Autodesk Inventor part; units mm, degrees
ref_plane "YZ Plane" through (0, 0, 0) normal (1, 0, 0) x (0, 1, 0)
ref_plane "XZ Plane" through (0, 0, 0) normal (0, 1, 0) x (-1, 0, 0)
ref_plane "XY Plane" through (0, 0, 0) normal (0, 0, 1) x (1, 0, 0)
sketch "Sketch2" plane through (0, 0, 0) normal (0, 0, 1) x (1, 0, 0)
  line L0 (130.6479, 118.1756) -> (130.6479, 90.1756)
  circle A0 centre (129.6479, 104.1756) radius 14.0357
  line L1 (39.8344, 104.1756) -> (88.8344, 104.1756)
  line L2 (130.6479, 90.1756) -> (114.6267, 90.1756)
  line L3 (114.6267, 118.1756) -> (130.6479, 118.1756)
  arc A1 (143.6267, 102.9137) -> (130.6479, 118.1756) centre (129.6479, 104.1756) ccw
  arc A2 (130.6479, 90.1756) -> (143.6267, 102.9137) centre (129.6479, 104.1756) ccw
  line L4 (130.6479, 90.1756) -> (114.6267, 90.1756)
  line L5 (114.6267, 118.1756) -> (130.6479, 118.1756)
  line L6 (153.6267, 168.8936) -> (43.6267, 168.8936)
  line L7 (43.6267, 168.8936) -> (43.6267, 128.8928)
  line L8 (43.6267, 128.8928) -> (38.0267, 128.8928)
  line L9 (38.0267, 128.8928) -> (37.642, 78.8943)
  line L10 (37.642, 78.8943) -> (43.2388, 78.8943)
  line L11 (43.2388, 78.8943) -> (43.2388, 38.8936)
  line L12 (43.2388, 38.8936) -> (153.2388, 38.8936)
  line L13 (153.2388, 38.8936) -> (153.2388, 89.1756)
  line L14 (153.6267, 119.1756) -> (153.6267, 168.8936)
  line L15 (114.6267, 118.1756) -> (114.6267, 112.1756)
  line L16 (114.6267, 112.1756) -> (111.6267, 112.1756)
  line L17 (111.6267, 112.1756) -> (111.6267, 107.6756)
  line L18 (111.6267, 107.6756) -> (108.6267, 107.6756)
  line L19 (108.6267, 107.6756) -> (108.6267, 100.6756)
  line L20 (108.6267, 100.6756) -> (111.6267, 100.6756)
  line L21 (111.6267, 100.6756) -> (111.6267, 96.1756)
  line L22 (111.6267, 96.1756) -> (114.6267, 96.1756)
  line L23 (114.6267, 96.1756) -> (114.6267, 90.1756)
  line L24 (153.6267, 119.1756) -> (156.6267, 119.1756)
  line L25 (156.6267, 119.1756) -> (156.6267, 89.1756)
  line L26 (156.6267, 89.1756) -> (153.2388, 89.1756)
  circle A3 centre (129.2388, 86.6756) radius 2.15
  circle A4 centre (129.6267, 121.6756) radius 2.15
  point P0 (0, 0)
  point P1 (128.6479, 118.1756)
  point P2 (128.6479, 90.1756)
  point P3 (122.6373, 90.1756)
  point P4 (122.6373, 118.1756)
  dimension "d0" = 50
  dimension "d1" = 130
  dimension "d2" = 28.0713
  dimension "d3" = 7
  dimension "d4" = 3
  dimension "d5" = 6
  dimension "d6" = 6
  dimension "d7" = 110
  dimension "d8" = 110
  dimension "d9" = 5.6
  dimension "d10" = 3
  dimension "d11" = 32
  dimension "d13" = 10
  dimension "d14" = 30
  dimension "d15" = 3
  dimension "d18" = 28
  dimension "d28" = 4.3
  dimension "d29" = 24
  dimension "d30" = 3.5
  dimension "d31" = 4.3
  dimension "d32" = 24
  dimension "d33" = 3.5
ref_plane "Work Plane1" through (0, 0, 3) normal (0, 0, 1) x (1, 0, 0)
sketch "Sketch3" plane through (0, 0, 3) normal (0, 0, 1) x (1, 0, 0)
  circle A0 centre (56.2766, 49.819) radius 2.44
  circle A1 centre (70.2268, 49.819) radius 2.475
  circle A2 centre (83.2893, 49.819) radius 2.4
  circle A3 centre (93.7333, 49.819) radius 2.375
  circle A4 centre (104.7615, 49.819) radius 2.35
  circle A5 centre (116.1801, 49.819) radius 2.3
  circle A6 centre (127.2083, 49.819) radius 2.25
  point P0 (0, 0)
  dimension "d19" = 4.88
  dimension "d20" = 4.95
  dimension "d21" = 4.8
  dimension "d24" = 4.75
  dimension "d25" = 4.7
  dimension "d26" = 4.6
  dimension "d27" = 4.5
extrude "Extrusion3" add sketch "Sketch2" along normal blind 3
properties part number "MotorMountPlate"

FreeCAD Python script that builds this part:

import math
import FreeCAD as App
import Part
import Sketcher

V = App.Vector
Q = App.Units.Quantity


def add_polygon(sketch, points):
    """Adds a closed chain of lines whose ends are joined by coincident constraints."""
    first, n = sketch.GeometryCount, len(points)
    for a, b in zip(points, points[1:] + points[:1]):
        sketch.addGeometry(Part.LineSegment(App.Vector(*a, 0), App.Vector(*b, 0)), False)
    for i in range(n):
        sketch.addConstraint(Sketcher.Constraint("Coincident", first + i, 2, first + (i + 1) % n, 1))

doc = App.newDocument("Part")
body = doc.addObject("PartDesign::Body", "Body")

# Sketch on XY plane
sketch1 = body.newObject("Sketcher::SketchObject", "Sketch")
sketch1.AttachmentSupport = (doc.getObject("XY_Plane"), [""])
sketch1.MapMode = "FlatFace"
add_polygon(sketch1, [(153.6, 119.2), (153.6, 168.9), (43.6, 168.9), (43.6, 128.9), (38, 128.9), (37.6, 78.9), (43.2, 78.9), (43.2, 38.9), (153.2, 38.9), (153.2, 89.2), (156.6, 89.2), (156.6, 119.2)])  # lines 0-11
sketch1.addGeometry(Part.Circle(V(129.2, 86.7, 0), V(0, 0, 1), 2.1), False)  # 12
sketch1.addGeometry(Part.ArcOfCircle(Part.Circle(V(129.6, 104.2, 0), V(0, 0, 1), 14), math.radians(-94), math.radians(94)), False)  # 13
sketch1.addGeometry(Part.LineSegment(V(128.6, 90.2, 0), V(114.6, 90.2, 0)), False)  # 14
sketch1.addGeometry(Part.LineSegment(V(114.6, 90.2, 0), V(114.6, 96.2, 0)), False)  # 15
sketch1.addGeometry(Part.LineSegment(V(114.6, 96.2, 0), V(111.6, 96.2, 0)), False)  # 16
sketch1.addGeometry(Part.LineSegment(V(111.6, 96.2, 0), V(111.6, 100.7, 0)), False)  # 17
sketch1.addGeometry(Part.LineSegment(V(111.6, 100.7, 0), V(108.6, 100.7, 0)), False)  # 18
sketch1.addGeometry(Part.LineSegment(V(108.6, 100.7, 0), V(108.6, 107.7, 0)), False)  # 19
sketch1.addGeometry(Part.LineSegment(V(108.6, 107.7, 0), V(111.6, 107.7, 0)), False)  # 20
sketch1.addGeometry(Part.LineSegment(V(111.6, 107.7, 0), V(111.6, 112.2, 0)), False)  # 21
sketch1.addGeometry(Part.LineSegment(V(111.6, 112.2, 0), V(114.6, 112.2, 0)), False)  # 22
sketch1.addGeometry(Part.LineSegment(V(114.6, 112.2, 0), V(114.6, 118.2, 0)), False)  # 23
sketch1.addGeometry(Part.LineSegment(V(114.6, 118.2, 0), V(128.6, 118.2, 0)), False)  # 24
sketch1.addGeometry(Part.Circle(V(129.6, 121.7, 0), V(0, 0, 1), 2.1), False)  # 25
sketch1.addConstraint([
    Sketcher.Constraint("Coincident", 13, 1, 14, 1),
    Sketcher.Constraint("Coincident", 14, 2, 15, 1),
    Sketcher.Constraint("Coincident", 15, 2, 16, 1),
    Sketcher.Constraint("Coincident", 16, 2, 17, 1),
    Sketcher.Constraint("Coincident", 17, 2, 18, 1),
    Sketcher.Constraint("Coincident", 18, 2, 19, 1),
    Sketcher.Constraint("Coincident", 19, 2, 20, 1),
    Sketcher.Constraint("Coincident", 20, 2, 21, 1),
    Sketcher.Constraint("Coincident", 21, 2, 22, 1),
    Sketcher.Constraint("Coincident", 22, 2, 23, 1),
    Sketcher.Constraint("Coincident", 23, 2, 24, 1),
    Sketcher.Constraint("Coincident", 24, 2, 13, 2),
    Sketcher.Constraint("Vertical", 0),
    Sketcher.Constraint("Horizontal", 1),
    Sketcher.Constraint("Vertical", 2),
    Sketcher.Constraint("Horizontal", 3),
    Sketcher.Constraint("Horizontal", 5),
    Sketcher.Constraint("Vertical", 6),
    Sketcher.Constraint("Horizontal", 7),
    Sketcher.Constraint("Vertical", 8),
    Sketcher.Constraint("Horizontal", 9),
    Sketcher.Constraint("Vertical", 10),
    Sketcher.Constraint("Horizontal", 11),
    Sketcher.Constraint("Horizontal", 14),
    Sketcher.Constraint("Vertical", 15),
    Sketcher.Constraint("Horizontal", 16),
    Sketcher.Constraint("Vertical", 17),
    Sketcher.Constraint("Horizontal", 18),
    Sketcher.Constraint("Vertical", 19),
    Sketcher.Constraint("Horizontal", 20),
    Sketcher.Constraint("Vertical", 21),
    Sketcher.Constraint("Horizontal", 22),
    Sketcher.Constraint("Vertical", 23),
    Sketcher.Constraint("Horizontal", 24),
    Sketcher.Constraint("Equal", 12, 25),
    Sketcher.Constraint("Vertical", 17, 2, 20, 2),
    Sketcher.Constraint("Vertical", 15, 2, 22, 2),
    Sketcher.Constraint("Vertical", 13, 1, 24, 2),
    Sketcher.Constraint("Equal", 1, 7),
    Sketcher.Constraint("Equal", 11, 16),
    Sketcher.Constraint("Equal", 16, 18),
    Sketcher.Constraint("Equal", 2, 6),
    Sketcher.Constraint("Equal", 17, 21),
    Sketcher.Constraint("Equal", 15, 23),
    Sketcher.Constraint("Diameter", 12, Q("4.3 mm")),
    Sketcher.Constraint("DistanceX", 1, 2, 1, 1, Q("110 mm")),
    Sketcher.Constraint("DistanceX", 11, 2, 11, 1, Q("3 mm")),
    Sketcher.Constraint("DistanceY", 10, 1, 10, 2, Q("30 mm")),
    Sketcher.Constraint("DistanceY", 15, 1, 15, 2, Q("6 mm")),
    Sketcher.Constraint("DistanceY", 19, 1, 19, 2, Q("7 mm")),
    Sketcher.Constraint("Distance", 4, Q("50 mm")),
    Sketcher.Constraint("DistanceX", 3, 2, 3, 1, Q("5.6 mm")),
    Sketcher.Constraint("DistanceX", 25, 3, 0, 2, Q("24 mm")),
    Sketcher.Constraint("DistanceX", 12, 3, 7, 2, Q("24 mm")),
    Sketcher.Constraint("Radius", 13, Q("14.0357 mm")),
    Sketcher.Constraint("DistanceY", 12, 3, 13, 1, Q("3.5 mm")),
    Sketcher.Constraint("DistanceY", 23, 2, 25, 3, Q("3.5 mm")),
    Sketcher.Constraint("DistanceY", 17, 1, 17, 2, Q("4.5 mm")),
    Sketcher.Constraint("DistanceY", 8, 2, 13, 3, Q("15 mm")),
    Sketcher.Constraint("DistanceX", 14, 2, 25, 3, Q("15 mm")),
    Sketcher.Constraint("Angle", 4, Q("-90.4408 deg")),
    Sketcher.Constraint("DistanceX", 9, 1, 9, 2, Q("3.388 mm")),
    Sketcher.Constraint("DistanceY", 0, 1, 0, 2, Q("49.718 mm")),
    Sketcher.Constraint("DistanceY", 8, 1, 8, 2, Q("50.282 mm")),
    Sketcher.Constraint("DistanceX", 14, 2, 14, 1, Q("14.0208 mm")),
    Sketcher.Constraint("DistanceX", -1, 1, 13, 3, Q("129.648 mm")),
    Sketcher.Constraint("DistanceY", -1, 1, 12, 3, Q("86.6756 mm")),
])
pad1 = body.newObject("PartDesign::Pad", "Pad")
pad1.Profile = sketch1
pad1.Length = 3

doc.recompute()
